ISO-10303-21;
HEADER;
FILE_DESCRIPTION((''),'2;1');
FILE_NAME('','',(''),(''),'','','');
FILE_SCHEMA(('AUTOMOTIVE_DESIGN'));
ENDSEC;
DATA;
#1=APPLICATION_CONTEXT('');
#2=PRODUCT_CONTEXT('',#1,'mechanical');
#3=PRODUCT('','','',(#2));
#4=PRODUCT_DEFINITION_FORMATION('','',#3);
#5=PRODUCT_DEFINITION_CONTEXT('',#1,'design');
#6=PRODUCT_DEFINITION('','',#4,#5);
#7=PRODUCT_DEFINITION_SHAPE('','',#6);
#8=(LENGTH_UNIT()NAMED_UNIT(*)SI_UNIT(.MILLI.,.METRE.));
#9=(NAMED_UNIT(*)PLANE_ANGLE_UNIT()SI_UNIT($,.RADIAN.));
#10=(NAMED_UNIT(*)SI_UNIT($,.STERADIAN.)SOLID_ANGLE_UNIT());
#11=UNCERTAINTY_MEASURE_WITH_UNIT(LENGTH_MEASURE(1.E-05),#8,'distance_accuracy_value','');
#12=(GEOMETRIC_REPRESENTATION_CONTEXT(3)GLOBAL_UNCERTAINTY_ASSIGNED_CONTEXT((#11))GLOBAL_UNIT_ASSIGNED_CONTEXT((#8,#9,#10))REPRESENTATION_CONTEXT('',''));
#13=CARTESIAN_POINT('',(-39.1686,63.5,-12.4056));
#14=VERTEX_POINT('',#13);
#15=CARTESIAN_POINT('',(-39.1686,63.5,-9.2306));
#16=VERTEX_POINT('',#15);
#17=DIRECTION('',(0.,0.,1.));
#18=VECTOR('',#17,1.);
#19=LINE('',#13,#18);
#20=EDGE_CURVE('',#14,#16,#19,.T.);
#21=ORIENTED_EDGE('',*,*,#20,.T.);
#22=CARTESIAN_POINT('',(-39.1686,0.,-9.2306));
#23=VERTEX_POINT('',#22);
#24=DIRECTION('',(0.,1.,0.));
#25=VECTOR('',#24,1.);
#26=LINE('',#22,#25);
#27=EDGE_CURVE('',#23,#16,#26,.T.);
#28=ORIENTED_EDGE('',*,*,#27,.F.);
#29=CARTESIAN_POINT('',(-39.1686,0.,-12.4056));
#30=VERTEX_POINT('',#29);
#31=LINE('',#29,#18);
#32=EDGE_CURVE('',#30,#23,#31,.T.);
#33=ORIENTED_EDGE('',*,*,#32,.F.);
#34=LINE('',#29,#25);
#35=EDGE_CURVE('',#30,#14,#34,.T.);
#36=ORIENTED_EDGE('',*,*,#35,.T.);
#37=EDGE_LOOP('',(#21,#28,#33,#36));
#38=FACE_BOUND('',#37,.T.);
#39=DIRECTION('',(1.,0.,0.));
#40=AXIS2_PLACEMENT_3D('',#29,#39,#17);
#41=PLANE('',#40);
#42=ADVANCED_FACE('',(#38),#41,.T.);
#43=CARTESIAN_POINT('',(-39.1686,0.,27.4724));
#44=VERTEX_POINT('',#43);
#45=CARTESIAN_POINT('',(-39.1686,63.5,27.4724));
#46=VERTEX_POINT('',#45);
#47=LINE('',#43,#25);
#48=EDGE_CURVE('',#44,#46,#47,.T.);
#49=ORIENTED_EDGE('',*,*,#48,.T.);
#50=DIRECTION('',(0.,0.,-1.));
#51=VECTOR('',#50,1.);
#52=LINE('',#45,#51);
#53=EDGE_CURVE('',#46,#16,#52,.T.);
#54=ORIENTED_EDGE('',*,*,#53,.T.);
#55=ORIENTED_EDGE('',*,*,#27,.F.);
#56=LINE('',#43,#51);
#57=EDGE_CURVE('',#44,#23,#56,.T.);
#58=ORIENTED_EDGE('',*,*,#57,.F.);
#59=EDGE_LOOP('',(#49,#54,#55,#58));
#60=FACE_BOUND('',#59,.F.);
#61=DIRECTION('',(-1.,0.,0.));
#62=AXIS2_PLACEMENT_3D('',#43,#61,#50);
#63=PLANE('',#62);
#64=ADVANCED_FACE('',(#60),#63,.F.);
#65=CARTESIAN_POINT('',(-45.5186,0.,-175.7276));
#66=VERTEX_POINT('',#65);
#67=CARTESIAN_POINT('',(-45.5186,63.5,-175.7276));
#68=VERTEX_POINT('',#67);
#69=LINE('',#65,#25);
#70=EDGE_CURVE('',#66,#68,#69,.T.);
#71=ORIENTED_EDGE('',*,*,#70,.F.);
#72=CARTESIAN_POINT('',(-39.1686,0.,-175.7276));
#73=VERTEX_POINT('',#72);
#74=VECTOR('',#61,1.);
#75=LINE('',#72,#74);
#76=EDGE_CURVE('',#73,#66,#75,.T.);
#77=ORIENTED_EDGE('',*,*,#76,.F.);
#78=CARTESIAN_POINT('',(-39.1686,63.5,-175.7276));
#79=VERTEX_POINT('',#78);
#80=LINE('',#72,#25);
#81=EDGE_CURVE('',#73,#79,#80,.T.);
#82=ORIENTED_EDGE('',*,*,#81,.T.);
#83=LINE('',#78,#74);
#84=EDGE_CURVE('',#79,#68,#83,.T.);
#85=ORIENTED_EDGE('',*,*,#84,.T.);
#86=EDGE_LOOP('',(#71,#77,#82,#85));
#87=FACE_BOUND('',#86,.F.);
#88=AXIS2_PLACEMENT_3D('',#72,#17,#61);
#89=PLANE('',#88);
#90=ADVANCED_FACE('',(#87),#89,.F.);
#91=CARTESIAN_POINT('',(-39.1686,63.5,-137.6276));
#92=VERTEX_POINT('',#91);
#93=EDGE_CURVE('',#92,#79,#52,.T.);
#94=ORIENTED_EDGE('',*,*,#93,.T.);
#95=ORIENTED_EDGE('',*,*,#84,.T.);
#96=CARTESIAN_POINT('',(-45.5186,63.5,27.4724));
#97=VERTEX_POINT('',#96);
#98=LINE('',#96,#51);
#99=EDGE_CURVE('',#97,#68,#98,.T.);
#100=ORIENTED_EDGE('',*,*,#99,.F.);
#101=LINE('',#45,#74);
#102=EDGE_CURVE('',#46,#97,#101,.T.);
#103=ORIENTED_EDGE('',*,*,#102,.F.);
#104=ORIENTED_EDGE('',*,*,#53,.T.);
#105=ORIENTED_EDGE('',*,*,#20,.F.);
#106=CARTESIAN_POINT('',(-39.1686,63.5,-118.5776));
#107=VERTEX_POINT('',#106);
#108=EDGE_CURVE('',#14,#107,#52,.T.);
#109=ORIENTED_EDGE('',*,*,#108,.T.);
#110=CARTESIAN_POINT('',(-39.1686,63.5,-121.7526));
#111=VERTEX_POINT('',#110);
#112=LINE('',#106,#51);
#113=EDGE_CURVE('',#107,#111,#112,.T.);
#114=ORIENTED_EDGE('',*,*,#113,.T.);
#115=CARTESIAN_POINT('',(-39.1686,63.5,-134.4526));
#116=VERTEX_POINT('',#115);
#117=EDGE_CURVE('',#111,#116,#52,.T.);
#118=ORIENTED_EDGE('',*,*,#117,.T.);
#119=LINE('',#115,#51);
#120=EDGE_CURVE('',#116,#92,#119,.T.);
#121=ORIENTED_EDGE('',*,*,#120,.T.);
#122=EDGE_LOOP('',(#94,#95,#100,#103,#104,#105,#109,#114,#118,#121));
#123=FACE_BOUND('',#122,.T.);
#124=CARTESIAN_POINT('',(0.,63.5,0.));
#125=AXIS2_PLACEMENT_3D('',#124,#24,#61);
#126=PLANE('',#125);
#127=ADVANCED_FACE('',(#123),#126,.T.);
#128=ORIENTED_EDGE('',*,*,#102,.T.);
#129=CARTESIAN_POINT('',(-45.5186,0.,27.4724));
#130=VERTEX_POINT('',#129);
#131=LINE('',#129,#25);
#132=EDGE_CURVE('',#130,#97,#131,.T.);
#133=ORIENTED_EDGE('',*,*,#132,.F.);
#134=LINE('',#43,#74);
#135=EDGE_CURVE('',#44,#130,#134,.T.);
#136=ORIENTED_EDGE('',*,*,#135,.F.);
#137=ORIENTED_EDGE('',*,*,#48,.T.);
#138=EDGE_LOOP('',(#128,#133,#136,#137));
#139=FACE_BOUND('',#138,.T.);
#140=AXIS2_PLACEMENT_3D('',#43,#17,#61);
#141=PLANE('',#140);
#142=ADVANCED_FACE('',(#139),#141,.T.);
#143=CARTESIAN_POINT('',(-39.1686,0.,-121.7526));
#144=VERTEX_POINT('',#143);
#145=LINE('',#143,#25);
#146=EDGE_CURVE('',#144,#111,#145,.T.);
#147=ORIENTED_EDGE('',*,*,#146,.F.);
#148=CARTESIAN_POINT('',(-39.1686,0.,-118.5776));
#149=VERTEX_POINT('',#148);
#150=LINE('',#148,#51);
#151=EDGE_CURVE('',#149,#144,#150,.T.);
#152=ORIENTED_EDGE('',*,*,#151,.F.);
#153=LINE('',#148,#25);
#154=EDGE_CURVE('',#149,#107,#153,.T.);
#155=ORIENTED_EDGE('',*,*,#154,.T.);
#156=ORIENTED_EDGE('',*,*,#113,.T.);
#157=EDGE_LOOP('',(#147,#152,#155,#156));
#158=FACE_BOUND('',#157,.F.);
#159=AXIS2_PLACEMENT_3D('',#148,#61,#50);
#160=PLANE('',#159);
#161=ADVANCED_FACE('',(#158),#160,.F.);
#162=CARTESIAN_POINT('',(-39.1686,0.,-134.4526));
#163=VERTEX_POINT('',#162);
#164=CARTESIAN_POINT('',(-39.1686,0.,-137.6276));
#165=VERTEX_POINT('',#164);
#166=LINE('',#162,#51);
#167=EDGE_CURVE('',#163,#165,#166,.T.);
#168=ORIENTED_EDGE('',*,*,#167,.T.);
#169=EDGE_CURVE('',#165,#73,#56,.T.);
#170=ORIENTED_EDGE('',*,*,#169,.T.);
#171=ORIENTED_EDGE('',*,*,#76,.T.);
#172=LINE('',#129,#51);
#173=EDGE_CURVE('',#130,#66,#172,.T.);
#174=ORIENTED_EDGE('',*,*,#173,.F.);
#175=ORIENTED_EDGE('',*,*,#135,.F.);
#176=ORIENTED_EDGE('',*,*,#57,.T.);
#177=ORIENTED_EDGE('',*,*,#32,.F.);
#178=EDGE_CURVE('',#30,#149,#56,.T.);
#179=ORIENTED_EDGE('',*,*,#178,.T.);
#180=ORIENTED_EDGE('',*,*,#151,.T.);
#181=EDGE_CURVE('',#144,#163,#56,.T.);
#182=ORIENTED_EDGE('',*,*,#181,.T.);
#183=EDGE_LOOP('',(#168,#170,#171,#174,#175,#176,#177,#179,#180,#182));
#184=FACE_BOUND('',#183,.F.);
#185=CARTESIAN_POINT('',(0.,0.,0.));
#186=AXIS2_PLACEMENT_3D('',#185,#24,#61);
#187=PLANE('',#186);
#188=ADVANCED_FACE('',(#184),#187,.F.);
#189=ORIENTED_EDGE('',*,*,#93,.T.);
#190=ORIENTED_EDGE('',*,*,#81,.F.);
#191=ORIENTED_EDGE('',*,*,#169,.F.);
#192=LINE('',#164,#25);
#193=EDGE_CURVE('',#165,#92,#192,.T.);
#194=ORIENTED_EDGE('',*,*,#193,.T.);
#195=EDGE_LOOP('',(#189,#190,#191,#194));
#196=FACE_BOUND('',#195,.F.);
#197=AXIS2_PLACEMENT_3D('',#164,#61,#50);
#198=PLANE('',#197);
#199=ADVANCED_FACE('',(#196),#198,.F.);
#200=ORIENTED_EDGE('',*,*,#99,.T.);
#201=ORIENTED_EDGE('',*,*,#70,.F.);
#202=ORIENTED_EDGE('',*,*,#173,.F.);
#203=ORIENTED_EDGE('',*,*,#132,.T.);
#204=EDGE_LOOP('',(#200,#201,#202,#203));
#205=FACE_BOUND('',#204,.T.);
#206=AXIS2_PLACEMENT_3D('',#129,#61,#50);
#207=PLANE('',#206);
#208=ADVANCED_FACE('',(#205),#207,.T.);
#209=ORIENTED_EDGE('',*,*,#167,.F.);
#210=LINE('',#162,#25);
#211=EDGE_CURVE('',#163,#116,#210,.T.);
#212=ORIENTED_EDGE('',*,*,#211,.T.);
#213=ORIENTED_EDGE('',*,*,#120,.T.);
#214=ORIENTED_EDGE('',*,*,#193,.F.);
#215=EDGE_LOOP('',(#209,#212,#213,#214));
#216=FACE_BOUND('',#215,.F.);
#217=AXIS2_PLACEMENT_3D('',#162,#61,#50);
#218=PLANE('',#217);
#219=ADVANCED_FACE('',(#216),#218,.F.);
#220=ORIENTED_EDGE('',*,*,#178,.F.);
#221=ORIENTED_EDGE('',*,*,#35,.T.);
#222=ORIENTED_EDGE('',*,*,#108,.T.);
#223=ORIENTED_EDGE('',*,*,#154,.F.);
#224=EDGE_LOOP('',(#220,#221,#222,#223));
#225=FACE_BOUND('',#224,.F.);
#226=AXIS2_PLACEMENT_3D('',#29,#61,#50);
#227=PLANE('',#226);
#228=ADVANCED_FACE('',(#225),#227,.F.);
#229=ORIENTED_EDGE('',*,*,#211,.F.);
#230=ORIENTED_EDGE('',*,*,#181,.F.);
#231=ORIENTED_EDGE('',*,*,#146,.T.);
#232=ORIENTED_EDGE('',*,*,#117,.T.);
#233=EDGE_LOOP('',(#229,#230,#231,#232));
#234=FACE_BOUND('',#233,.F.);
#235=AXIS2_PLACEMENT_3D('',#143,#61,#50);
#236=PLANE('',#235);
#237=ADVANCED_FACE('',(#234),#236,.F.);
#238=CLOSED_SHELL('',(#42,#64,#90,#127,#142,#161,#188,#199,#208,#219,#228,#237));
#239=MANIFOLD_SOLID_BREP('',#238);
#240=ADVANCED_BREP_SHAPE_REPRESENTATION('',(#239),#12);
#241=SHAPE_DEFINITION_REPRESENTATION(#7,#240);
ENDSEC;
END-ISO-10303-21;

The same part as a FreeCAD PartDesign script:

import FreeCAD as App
import Part
import Sketcher
Q = App.Units.Quantity

doc = App.newDocument("Part")
body = doc.addObject("PartDesign::Body", "Body")

# Sketch on XZ plane
sketch1 = doc.addObject("Sketcher::SketchObject", "Sketch")
body.addObject(sketch1)
sketch1.AttachmentSupport = (doc.XZ_Plane, [""])
sketch1.MapMode = "FlatFace"
sketch1.addGeometry(Part.LineSegment(App.Vector(-46, 27, 0), App.Vector(-39, 27, 0)), False)
sketch1.addGeometry(Part.LineSegment(App.Vector(-39, 27, 0), App.Vector(-39, -176, 0)), False)
sketch1.addGeometry(Part.LineSegment(App.Vector(-39, -176, 0), App.Vector(-46, -176, 0)), False)
sketch1.addGeometry(Part.LineSegment(App.Vector(-46, -176, 0), App.Vector(-46, 27, 0)), False)
sketch1.addConstraint(Sketcher.Constraint("Coincident", 0, 2, 1, 1))
sketch1.addConstraint(Sketcher.Constraint("Coincident", 1, 2, 2, 1))
sketch1.addConstraint(Sketcher.Constraint("Coincident", 2, 2, 3, 1))
sketch1.addConstraint(Sketcher.Constraint("Coincident", 3, 2, 0, 1))
sketch1.addConstraint(Sketcher.Constraint("Horizontal", 0))
sketch1.addConstraint(Sketcher.Constraint("Vertical", 1))
sketch1.addConstraint(Sketcher.Constraint("Horizontal", 2))
sketch1.addConstraint(Sketcher.Constraint("Vertical", 3))
sketch1.addConstraint(Sketcher.Constraint("DistanceY", 1, 2, 1, 1, Q("8 in")))
sketch1.addConstraint(Sketcher.Constraint("DistanceX", 0, 1, 0, 2, Q("0.25 in")))
sketch1.addConstraint(Sketcher.Constraint("DistanceY", -1, 1, 0, 2, Q("1.0816 in")))
sketch1.addConstraint(Sketcher.Constraint("DistanceX", 0, 2, -1, 1, Q("39.1686 mm")))
pad1 = doc.addObject("PartDesign::Pad", "Pad")
body.addObject(pad1)
pad1.Profile = sketch1
pad1.Length = Q("2.5 in")
pad1.Reversed = True

doc.recompute()
